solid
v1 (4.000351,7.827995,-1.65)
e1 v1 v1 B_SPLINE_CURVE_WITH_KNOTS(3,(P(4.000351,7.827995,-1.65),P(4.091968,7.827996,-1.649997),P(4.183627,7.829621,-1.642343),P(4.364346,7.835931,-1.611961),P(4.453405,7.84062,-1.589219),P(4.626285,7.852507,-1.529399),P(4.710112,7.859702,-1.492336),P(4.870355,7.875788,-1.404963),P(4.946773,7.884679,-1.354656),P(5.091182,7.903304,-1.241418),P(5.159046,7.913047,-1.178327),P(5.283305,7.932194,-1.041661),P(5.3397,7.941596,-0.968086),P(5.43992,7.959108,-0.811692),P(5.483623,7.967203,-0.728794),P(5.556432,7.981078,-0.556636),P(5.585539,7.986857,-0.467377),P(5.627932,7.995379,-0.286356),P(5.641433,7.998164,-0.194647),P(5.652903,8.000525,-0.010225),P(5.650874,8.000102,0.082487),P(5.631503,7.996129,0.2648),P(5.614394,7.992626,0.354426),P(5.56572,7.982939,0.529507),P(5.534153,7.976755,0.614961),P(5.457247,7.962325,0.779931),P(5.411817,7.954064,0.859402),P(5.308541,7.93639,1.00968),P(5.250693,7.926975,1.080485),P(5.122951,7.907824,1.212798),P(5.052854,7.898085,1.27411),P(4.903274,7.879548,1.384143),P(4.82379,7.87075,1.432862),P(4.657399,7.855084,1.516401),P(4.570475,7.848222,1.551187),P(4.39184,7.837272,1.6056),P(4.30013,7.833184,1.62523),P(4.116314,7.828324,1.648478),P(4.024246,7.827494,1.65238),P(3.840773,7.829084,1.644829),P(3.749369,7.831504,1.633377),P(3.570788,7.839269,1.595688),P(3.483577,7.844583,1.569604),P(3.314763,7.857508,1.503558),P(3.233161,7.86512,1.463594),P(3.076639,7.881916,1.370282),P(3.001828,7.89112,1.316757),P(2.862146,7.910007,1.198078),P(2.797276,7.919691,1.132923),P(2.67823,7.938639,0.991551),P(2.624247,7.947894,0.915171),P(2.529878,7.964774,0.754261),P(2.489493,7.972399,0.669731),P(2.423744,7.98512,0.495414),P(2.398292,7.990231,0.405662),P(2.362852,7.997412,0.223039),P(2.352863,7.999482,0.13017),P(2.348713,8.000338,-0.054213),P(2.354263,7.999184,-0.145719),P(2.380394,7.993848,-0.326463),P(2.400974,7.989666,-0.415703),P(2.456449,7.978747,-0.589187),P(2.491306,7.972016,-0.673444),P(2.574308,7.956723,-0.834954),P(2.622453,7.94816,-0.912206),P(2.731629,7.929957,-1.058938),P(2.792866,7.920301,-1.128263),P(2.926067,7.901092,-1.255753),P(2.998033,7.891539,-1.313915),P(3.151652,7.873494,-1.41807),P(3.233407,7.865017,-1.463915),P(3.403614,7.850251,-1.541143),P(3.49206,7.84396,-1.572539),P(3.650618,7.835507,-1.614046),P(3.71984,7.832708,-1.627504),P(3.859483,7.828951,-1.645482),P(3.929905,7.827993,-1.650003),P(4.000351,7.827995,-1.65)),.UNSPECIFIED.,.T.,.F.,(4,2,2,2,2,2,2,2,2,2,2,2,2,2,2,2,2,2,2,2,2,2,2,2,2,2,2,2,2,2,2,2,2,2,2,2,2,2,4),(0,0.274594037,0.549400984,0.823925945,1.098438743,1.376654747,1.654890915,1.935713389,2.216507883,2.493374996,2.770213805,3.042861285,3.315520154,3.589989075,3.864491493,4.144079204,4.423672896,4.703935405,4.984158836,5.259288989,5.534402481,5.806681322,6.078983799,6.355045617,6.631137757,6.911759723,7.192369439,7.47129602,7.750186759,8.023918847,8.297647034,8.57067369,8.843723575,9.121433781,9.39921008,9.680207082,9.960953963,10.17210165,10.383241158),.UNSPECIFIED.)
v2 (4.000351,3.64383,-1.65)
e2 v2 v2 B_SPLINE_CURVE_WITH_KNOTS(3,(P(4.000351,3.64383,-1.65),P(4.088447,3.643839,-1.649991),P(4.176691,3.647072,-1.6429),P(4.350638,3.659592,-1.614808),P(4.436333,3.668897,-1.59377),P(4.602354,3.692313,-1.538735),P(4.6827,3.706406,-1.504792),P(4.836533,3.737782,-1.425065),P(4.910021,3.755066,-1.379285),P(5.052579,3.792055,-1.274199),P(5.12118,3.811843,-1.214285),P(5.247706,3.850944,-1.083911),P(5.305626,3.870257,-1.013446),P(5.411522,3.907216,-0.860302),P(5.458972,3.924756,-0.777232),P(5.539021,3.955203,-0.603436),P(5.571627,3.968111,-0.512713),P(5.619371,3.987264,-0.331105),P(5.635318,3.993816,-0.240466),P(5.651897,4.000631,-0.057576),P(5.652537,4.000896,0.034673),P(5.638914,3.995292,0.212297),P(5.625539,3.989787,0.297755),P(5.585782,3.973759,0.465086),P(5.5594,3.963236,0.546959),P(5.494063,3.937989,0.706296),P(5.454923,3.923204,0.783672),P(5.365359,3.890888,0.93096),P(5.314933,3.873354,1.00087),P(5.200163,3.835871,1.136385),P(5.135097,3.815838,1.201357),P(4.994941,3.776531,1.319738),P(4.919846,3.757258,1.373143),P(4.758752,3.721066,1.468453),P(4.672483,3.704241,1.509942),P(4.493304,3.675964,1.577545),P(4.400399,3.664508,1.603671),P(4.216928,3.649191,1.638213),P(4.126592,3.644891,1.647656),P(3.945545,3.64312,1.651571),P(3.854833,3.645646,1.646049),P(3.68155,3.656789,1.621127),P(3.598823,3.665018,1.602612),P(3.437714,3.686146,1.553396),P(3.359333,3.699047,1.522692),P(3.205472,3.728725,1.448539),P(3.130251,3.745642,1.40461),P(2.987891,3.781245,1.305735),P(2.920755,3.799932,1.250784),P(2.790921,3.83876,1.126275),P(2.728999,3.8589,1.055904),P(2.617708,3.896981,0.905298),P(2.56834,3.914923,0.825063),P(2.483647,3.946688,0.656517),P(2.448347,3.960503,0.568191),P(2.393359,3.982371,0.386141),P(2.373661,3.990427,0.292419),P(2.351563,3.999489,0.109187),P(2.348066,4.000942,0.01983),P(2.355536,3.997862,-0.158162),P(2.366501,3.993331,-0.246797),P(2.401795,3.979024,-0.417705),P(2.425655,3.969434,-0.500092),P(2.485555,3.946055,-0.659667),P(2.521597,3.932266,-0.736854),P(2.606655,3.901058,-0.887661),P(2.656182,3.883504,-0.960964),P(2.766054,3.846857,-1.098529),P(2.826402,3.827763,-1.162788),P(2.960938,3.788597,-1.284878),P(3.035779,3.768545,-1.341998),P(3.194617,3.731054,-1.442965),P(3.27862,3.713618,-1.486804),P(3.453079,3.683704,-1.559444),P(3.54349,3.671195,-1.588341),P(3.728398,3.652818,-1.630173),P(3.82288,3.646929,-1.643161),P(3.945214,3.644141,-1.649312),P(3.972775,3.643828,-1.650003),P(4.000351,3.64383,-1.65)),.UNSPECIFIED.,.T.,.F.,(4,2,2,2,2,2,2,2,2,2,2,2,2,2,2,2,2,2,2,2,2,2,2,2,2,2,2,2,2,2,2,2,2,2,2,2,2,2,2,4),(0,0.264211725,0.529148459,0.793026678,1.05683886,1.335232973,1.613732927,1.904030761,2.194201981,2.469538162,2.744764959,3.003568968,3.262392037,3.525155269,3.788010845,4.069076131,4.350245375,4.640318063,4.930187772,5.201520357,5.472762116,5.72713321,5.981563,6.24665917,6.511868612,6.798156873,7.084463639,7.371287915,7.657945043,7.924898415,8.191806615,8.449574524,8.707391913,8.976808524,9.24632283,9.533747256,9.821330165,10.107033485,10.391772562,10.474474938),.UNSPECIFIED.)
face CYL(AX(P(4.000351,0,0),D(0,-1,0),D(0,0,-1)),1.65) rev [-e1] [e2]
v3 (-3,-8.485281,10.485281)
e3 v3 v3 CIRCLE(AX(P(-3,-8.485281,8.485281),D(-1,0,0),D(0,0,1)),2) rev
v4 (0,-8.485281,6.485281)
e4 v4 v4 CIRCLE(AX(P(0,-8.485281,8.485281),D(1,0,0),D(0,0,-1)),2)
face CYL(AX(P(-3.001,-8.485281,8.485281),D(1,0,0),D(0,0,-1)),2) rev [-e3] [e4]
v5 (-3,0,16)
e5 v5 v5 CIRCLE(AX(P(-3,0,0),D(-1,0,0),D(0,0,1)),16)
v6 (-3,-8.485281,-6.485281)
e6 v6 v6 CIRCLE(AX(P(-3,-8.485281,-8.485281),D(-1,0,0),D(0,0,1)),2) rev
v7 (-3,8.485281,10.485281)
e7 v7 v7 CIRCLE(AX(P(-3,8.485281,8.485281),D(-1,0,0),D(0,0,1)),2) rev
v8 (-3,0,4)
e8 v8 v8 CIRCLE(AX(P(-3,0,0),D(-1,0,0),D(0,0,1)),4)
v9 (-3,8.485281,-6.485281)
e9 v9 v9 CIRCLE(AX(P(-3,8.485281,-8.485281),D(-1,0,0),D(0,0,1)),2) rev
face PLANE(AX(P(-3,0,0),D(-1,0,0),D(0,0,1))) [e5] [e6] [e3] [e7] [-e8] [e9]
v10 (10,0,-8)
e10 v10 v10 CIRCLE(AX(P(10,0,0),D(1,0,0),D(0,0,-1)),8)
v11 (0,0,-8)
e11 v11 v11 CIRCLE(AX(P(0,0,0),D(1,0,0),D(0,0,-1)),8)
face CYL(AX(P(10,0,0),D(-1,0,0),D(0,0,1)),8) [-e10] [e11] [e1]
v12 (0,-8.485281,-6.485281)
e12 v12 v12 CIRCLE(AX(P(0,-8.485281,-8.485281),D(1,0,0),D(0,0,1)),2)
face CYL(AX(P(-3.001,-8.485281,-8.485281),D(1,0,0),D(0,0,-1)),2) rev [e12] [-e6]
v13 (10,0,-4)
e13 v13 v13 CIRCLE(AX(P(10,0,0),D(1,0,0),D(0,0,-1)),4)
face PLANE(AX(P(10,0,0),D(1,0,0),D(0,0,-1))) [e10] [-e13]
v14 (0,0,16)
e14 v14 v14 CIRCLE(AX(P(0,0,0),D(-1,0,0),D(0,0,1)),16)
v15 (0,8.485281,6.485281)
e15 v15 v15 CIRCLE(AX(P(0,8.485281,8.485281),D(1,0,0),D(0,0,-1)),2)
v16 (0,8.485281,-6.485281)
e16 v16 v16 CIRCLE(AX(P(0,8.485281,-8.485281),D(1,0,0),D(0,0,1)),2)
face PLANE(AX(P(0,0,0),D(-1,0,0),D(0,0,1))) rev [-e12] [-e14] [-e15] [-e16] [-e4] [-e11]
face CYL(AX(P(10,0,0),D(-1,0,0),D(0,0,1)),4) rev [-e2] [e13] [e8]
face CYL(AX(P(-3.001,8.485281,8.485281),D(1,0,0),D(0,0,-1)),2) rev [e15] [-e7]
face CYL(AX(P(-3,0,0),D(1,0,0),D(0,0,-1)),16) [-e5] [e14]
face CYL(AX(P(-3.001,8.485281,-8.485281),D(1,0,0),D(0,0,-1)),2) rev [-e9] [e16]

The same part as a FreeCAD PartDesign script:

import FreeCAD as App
import Part
import Sketcher
from FreeCAD import Vector
Q = App.Units.Quantity

doc = App.newDocument("Part")
body = doc.addObject("PartDesign::Body", "Body")

sketch1 = doc.addObject("Sketcher::SketchObject", "Sketch")
body.addObject(sketch1)
sketch1.AttachmentSupport = (doc.YZ_Plane, [""])
sketch1.MapMode = "FlatFace"
sketch1.addGeometry(Part.Circle(Vector(0, 0, 0), Vector(0, 0, 1), 8), False)
sketch1.addGeometry(Part.Circle(Vector(0, 0, 0), Vector(0, 0, 1), 4), False)
sketch1.addConstraint(Sketcher.Constraint("Coincident", 0, 3, -1, 1))
sketch1.addConstraint(Sketcher.Constraint("Coincident", 1, 3, -1, 1))
sketch1.addConstraint(Sketcher.Constraint("Diameter", 0, Q("16 mm")))
sketch1.addConstraint(Sketcher.Constraint("Diameter", 1, Q("8 mm")))
pad1 = doc.addObject("PartDesign::Pad", "Pad")
body.addObject(pad1)
pad1.Profile = sketch1
pad1.Length = 10

sketch2 = doc.addObject("Sketcher::SketchObject", "Sketch001")
body.addObject(sketch2)
sketch2.AttachmentSupport = (doc.YZ_Plane, [""])
sketch2.MapMode = "FlatFace"
sketch2.addGeometry(Part.Circle(Vector(0, 0, 0), Vector(0, 0, 1), 16), False)
sketch2.addGeometry(Part.Circle(Vector(0, 0, 0), Vector(0, 0, 1), 4), False)
sketch2.addConstraint(Sketcher.Constraint("Coincident", 0, 3, -1, 1))
sketch2.addConstraint(Sketcher.Constraint("Coincident", 1, 3, -1, 1))
sketch2.addConstraint(Sketcher.Constraint("Diameter", 0, Q("32 mm")))
sketch2.addConstraint(Sketcher.Constraint("Diameter", 1, Q("8 mm")))
pad2 = doc.addObject("PartDesign::Pad", "Pad001")
body.addObject(pad2)
pad2.Profile = sketch2
pad2.Length = 3
pad2.Reversed = True

sketch3 = doc.addObject("Sketcher::SketchObject", "Sketch002")
body.addObject(sketch3)
sketch3.AttachmentSupport = (doc.YZ_Plane, [""])
sketch3.MapMode = "FlatFace"
sketch3.addGeometry(Part.Circle(Vector(-8.485281, 8.485281, 0), Vector(0, 0, 1), 2), False)
sketch3.addConstraint(Sketcher.Constraint("Diameter", 0, Q("4 mm")))
sketch3.addConstraint(Sketcher.Constraint("DistanceX", 0, 3, -1, 1, Q("8.485281 mm")))
sketch3.addConstraint(Sketcher.Constraint("DistanceY", -1, 1, 0, 3, Q("8.485281 mm")))
pocket1 = doc.addObject("PartDesign::Pocket", "Pocket")
body.addObject(pocket1)
pocket1.Profile = sketch3
pocket1.Type = "UpToFirst"

sketch4 = doc.addObject("Sketcher::SketchObject", "Sketch003")
body.addObject(sketch4)
sketch4.AttachmentSupport = (doc.YZ_Plane, [""])
sketch4.MapMode = "FlatFace"
sketch4.addGeometry(Part.Circle(Vector(8.485281, -8.485281, 0), Vector(0, 0, 1), 2), False)
sketch4.addConstraint(Sketcher.Constraint("Diameter", 0, Q("4 mm")))
sketch4.addConstraint(Sketcher.Constraint("DistanceX", -1, 1, 0, 3, Q("8.485281 mm")))
sketch4.addConstraint(Sketcher.Constraint("DistanceY", 0, 3, -1, 1, Q("8.485281 mm")))
pocket2 = doc.addObject("PartDesign::Pocket", "Pocket001")
body.addObject(pocket2)
pocket2.Profile = sketch4
pocket2.Type = "UpToFirst"

sketch5 = doc.addObject("Sketcher::SketchObject", "Sketch004")
body.addObject(sketch5)
sketch5.AttachmentSupport = (doc.YZ_Plane, [""])
sketch5.MapMode = "FlatFace"
sketch5.addGeometry(Part.Circle(Vector(8.485281, 8.485281, 0), Vector(0, 0, 1), 2), False)
sketch5.addConstraint(Sketcher.Constraint("Diameter", 0, Q("4 mm")))
sketch5.addConstraint(Sketcher.Constraint("DistanceX", -1, 1, 0, 3, Q("8.485281 mm")))
sketch5.addConstraint(Sketcher.Constraint("DistanceY", -1, 1, 0, 3, Q("8.485281 mm")))
pocket3 = doc.addObject("PartDesign::Pocket", "Pocket002")
body.addObject(pocket3)
pocket3.Profile = sketch5
pocket3.Type = "UpToFirst"

sketch6 = doc.addObject("Sketcher::SketchObject", "Sketch005")
body.addObject(sketch6)
sketch6.AttachmentSupport = (doc.YZ_Plane, [""])
sketch6.MapMode = "FlatFace"
sketch6.addGeometry(Part.Circle(Vector(-8.485281, -8.485281, 0), Vector(0, 0, 1), 2), False)
sketch6.addConstraint(Sketcher.Constraint("Diameter", 0, Q("4 mm")))
sketch6.addConstraint(Sketcher.Constraint("DistanceX", 0, 3, -1, 1, Q("8.485281 mm")))
sketch6.addConstraint(Sketcher.Constraint("DistanceY", 0, 3, -1, 1, Q("8.485281 mm")))
pocket4 = doc.addObject("PartDesign::Pocket", "Pocket003")
body.addObject(pocket4)
pocket4.Profile = sketch6
pocket4.Type = "UpToFirst"

sketch7 = doc.addObject("Sketcher::SketchObject", "Sketch006")
body.addObject(sketch7)
sketch7.AttachmentSupport = (doc.YZ_Plane, [""])
sketch7.MapMode = "FlatFace"
sketch7.AttachmentOffset = App.Placement(Vector(0, 0, 4.000351), App.Rotation())
sketch7.addGeometry(Part.LineSegment(Vector(12.49142, 0, 0), Vector(0, 0, 0)), False)
sketch7.addGeometry(Part.LineSegment(Vector(0, 0, 0), Vector(0, -1.65, 0)), False)
sketch7.addGeometry(Part.LineSegment(Vector(0, -1.65, 0), Vector(11.5, -1.65, 0)), False)
sketch7.addGeometry(Part.LineSegment(Vector(11.5, -1.65, 0), Vector(12.49142, 0, 0)), False)
sketch7.addConstraint(Sketcher.Constraint("Coincident", 0, 2, 1, 1))
sketch7.addConstraint(Sketcher.Constraint("Coincident", 1, 2, 2, 1))
sketch7.addConstraint(Sketcher.Constraint("Coincident", 2, 2, 3, 1))
sketch7.addConstraint(Sketcher.Constraint("Coincident", 3, 2, 0, 1))
sketch7.addConstraint(Sketcher.Constraint("Horizontal", 0))
sketch7.addConstraint(Sketcher.Constraint("Vertical", 1))
sketch7.addConstraint(Sketcher.Constraint("Horizontal", 2))
sketch7.addConstraint(Sketcher.Constraint("Coincident", 0, 2, -1, 1))
sketch7.addConstraint(Sketcher.Constraint("Angle", 3, Q("59 deg")))
sketch7.addConstraint(Sketcher.Constraint("DistanceX", 2, 1, 2, 2, Q("11.5 mm")))
sketch7.addConstraint(Sketcher.Constraint("DistanceY", 1, 2, 1, 1, Q("1.65 mm")))
groove = doc.addObject("PartDesign::Groove", "Groove")
body.addObject(groove)
groove.Profile = sketch7
groove.ReferenceAxis = (sketch7, ["H_Axis"])
groove.Angle = 360

doc.recompute()
